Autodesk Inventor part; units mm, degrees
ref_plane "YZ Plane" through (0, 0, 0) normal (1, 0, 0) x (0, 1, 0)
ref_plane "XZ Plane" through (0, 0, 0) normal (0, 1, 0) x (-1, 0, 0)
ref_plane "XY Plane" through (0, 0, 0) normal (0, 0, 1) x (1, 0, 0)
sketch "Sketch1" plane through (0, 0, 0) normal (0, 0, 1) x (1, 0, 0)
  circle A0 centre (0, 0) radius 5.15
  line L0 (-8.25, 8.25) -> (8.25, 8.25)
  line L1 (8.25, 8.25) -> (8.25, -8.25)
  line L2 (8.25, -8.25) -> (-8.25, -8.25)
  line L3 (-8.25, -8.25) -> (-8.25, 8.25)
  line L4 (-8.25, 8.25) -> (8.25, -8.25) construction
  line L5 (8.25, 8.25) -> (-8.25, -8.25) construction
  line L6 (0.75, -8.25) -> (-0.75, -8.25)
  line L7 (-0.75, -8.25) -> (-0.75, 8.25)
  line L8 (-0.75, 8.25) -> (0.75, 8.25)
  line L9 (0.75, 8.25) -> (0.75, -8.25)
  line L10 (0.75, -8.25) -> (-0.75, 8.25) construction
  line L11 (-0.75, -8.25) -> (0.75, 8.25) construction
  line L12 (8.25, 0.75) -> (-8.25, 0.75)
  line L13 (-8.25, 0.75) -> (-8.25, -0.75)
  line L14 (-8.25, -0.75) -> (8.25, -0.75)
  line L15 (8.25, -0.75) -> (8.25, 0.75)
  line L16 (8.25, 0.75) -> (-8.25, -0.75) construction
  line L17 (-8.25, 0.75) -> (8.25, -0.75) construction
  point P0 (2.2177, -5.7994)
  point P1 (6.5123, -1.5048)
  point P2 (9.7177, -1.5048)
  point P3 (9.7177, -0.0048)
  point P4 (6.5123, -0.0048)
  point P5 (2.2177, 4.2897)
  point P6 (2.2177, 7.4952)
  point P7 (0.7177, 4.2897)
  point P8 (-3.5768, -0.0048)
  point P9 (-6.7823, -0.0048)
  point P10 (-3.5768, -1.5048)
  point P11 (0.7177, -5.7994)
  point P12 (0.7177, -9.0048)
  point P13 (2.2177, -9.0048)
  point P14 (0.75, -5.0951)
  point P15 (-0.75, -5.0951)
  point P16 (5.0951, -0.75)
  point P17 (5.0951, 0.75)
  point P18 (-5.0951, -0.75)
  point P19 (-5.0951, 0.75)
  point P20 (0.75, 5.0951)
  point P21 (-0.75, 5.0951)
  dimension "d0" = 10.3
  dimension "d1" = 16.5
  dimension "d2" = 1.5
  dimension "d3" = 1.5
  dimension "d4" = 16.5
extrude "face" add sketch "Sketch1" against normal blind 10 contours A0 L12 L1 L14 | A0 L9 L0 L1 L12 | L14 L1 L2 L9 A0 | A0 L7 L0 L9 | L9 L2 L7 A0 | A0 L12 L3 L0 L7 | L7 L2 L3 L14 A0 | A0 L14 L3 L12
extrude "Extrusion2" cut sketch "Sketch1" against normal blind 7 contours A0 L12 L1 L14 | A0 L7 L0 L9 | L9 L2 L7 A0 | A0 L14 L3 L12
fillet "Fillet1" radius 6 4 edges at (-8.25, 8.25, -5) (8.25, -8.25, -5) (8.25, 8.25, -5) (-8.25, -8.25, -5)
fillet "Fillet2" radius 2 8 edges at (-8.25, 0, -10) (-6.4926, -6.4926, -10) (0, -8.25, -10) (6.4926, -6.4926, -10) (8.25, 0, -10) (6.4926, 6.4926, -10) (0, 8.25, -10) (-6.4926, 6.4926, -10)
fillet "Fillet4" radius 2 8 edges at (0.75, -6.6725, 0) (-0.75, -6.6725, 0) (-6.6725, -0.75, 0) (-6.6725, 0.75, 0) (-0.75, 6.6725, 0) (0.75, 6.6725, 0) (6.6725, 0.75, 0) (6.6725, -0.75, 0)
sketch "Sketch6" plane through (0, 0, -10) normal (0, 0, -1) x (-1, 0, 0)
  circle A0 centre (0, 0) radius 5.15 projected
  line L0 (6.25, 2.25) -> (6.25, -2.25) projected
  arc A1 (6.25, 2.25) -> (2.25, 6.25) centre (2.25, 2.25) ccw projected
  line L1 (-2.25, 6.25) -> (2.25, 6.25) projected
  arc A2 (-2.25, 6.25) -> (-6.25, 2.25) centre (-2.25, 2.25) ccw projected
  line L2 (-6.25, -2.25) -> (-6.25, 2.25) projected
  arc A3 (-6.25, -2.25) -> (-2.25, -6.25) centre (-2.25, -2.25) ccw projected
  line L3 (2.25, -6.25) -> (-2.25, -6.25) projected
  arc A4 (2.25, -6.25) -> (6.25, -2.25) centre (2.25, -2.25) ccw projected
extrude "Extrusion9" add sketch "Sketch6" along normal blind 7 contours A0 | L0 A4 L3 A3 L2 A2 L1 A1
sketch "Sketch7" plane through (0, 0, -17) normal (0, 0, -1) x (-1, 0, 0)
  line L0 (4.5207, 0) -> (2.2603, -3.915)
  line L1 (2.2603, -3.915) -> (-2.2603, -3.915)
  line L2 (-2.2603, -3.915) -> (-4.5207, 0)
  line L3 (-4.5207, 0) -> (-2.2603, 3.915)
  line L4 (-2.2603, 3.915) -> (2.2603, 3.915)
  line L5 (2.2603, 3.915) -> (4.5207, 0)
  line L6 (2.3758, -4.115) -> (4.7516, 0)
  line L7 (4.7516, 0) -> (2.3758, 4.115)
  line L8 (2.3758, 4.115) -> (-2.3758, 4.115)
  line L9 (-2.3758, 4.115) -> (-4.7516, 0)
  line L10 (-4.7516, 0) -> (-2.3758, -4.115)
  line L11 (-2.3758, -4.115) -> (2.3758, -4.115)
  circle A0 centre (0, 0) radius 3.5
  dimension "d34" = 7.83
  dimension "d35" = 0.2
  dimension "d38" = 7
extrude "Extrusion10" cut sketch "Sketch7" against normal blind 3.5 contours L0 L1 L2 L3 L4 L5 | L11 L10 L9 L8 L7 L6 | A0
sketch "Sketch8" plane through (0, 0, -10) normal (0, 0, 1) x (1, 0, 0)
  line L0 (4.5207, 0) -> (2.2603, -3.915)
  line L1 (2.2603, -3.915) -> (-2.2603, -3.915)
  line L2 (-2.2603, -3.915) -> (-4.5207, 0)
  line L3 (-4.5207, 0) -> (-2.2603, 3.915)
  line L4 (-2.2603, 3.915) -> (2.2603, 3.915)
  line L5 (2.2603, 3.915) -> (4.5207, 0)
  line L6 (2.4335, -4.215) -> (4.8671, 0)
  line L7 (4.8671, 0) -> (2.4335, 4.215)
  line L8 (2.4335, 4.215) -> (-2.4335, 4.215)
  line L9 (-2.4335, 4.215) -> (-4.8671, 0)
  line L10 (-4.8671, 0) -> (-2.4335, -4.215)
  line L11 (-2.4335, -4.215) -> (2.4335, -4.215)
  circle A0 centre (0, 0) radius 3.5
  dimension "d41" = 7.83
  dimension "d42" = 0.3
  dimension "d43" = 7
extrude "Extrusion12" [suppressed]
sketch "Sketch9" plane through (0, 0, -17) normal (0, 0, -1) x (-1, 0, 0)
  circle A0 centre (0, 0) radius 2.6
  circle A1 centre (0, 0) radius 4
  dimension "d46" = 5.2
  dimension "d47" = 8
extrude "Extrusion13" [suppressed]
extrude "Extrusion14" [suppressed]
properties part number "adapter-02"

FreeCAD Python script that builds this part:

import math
import FreeCAD as App
import Part
import Sketcher
from FreeCAD import Vector
Q = App.Units.Quantity


def edges_at(feature, points):
    """Names of the edges that pass closest to the given points."""
    edges = feature.Shape.Edges
    near = lambda p: min(range(len(edges)), key=lambda i: edges[i].distToShape(Part.Vertex(*p))[0])
    return sorted({f"Edge{near(p) + 1}" for p in points})

doc = App.newDocument("Part")
params = doc.addObject("Spreadsheet::Sheet", "Params")
for row, (alias, value) in enumerate([
    ("sketch1_diameter", "10.3 mm"),
    ("sketch1_width", "16.5 mm"),
    ("pad1_length", "10 mm"),
    ("sketch2_radius", "5.15 mm"),
    ("sketch2_width", "1.5 mm"),
    ("pocket1_length", "7 mm"),
    ("fillet_radius", "6 mm"),
    ("fillet2_radius", "2 mm"),
    ("fillet3_radius", "2 mm"),
    ("sketch3_radius", "4 mm"),
    ("sketch3_width", "4.5 mm"),
    ("pad2_length", "7 mm"),
    ("pocket2_length", "3.5 mm"),
], start=1):
    params.set(f"A{row}", alias)
    params.set(f"B{row}", "=" + value)
    params.setAlias(f"B{row}", alias)

body = doc.addObject("PartDesign::Body", "Body")

# Sketch on XY plane
sketch1 = body.newObject("Sketcher::SketchObject", "Sketch")
sketch1.AttachmentSupport = (doc.getObject("XY_Plane"), [""])
sketch1.MapMode = "FlatFace"
sketch1.addGeometry([
    Part.LineSegment(Vector(8, 8, 0), Vector(-8, 8, 0)),  # 0
    Part.LineSegment(Vector(-8, 8, 0), Vector(-8, -8, 0)),  # 1
    Part.LineSegment(Vector(-8, -8, 0), Vector(8, -8, 0)),  # 2
    Part.LineSegment(Vector(8, -8, 0), Vector(8, 8, 0)),  # 3
    Part.Circle(Vector(0, 0, 0), Vector(0, 0, 1), 5),  # 4
], False)
sketch1.addConstraint([
    Sketcher.Constraint("Coincident", 0, 2, 1, 1),
    Sketcher.Constraint("Coincident", 1, 2, 2, 1),
    Sketcher.Constraint("Coincident", 2, 2, 3, 1),
    Sketcher.Constraint("Coincident", 3, 2, 0, 1),
    Sketcher.Constraint("Horizontal", 0),
    Sketcher.Constraint("Vertical", 1),
    Sketcher.Constraint("Horizontal", 2),
    Sketcher.Constraint("Vertical", 3),
    Sketcher.Constraint("Coincident", 4, 3, -1, 1),
    Sketcher.Constraint("Symmetric", 0, 2, 2, 2, -1, 1),
    Sketcher.Constraint("Equal", 2, 1),
    Sketcher.Constraint("Diameter", 4, 10.3),
    Sketcher.Constraint("DistanceX", 0, 2, 0, 1, 16.5),
])
sketch1.setExpression("Constraints[11]", "Params.sketch1_diameter")
sketch1.setExpression("Constraints[12]", "Params.sketch1_width")
pad1 = body.newObject("PartDesign::Pad", "Pad")
pad1.Profile = sketch1
pad1.setExpression("Length", "Params.pad1_length")
pad1.Reversed = True

# Sketch on XY plane
sketch2 = body.newObject("Sketcher::SketchObject", "Sketch001")
sketch2.AttachmentSupport = (doc.getObject("XY_Plane"), [""])
sketch2.MapMode = "FlatFace"
sketch2.addGeometry([
    Part.ArcOfCircle(Part.Circle(Vector(0, 0, 0), Vector(0, 0, 1), 5.2), math.radians(-8.37), math.radians(8.37)),  # 0
    Part.LineSegment(Vector(5.1, -0.8, 0), Vector(8.2, -0.8, 0)),  # 1
    Part.LineSegment(Vector(8.2, -0.8, 0), Vector(8.2, 0.8, 0)),  # 2
    Part.LineSegment(Vector(8.2, 0.8, 0), Vector(5.1, 0.8, 0)),  # 3
    Part.ArcOfCircle(Part.Circle(Vector(0, 0, 0), Vector(0, 0, 1), 5.2), math.radians(81.63), math.radians(98.37)),  # 4
    Part.LineSegment(Vector(0.8, 5.1, 0), Vector(0.8, 8.2, 0)),  # 5
    Part.LineSegment(Vector(0.8, 8.2, 0), Vector(-0.8, 8.2, 0)),  # 6
    Part.LineSegment(Vector(-0.8, 8.2, 0), Vector(-0.8, 5.1, 0)),  # 7
    Part.LineSegment(Vector(0.8, -8.2, 0), Vector(0.8, -5.1, 0)),  # 8
    Part.ArcOfCircle(Part.Circle(Vector(0, 0, 0), Vector(0, 0, 1), 5.2), math.radians(-98.37), math.radians(-81.63)),  # 9
    Part.LineSegment(Vector(-0.8, -5.1, 0), Vector(-0.8, -8.2, 0)),  # 10
    Part.LineSegment(Vector(-0.8, -8.2, 0), Vector(0.8, -8.2, 0)),  # 11
    Part.ArcOfCircle(Part.Circle(Vector(0, 0, 0), Vector(0, 0, 1), 5.2), math.radians(171.63), math.radians(188.37)),  # 12
    Part.LineSegment(Vector(-5.1, 0.8, 0), Vector(-8.2, 0.8, 0)),  # 13
    Part.LineSegment(Vector(-8.2, 0.8, 0), Vector(-8.2, -0.8, 0)),  # 14
    Part.LineSegment(Vector(-8.2, -0.8, 0), Vector(-5.1, -0.8, 0)),  # 15
], False)
sketch2.addConstraint([
    Sketcher.Constraint("Coincident", 0, 1, 1, 1),
    Sketcher.Constraint("Coincident", 1, 2, 2, 1),
    Sketcher.Constraint("Coincident", 2, 2, 3, 1),
    Sketcher.Constraint("Coincident", 3, 2, 0, 2),
    Sketcher.Constraint("Coincident", 4, 1, 5, 1),
    Sketcher.Constraint("Coincident", 5, 2, 6, 1),
    Sketcher.Constraint("Coincident", 6, 2, 7, 1),
    Sketcher.Constraint("Coincident", 7, 2, 4, 2),
    Sketcher.Constraint("Coincident", 8, 2, 9, 2),
    Sketcher.Constraint("Coincident", 9, 1, 10, 1),
    Sketcher.Constraint("Coincident", 10, 2, 11, 1),
    Sketcher.Constraint("Coincident", 11, 2, 8, 1),
    Sketcher.Constraint("Coincident", 12, 1, 13, 1),
    Sketcher.Constraint("Coincident", 13, 2, 14, 1),
    Sketcher.Constraint("Coincident", 14, 2, 15, 1),
    Sketcher.Constraint("Coincident", 15, 2, 12, 2),
    Sketcher.Constraint("Horizontal", 1),
    Sketcher.Constraint("Vertical", 2),
    Sketcher.Constraint("Horizontal", 3),
    Sketcher.Constraint("Vertical", 5),
    Sketcher.Constraint("Horizontal", 6),
    Sketcher.Constraint("Vertical", 7),
    Sketcher.Constraint("Vertical", 8),
    Sketcher.Constraint("Vertical", 10),
    Sketcher.Constraint("Horizontal", 11),
    Sketcher.Constraint("Horizontal", 13),
    Sketcher.Constraint("Vertical", 14),
    Sketcher.Constraint("Horizontal", 15),
    Sketcher.Constraint("Coincident", 0, 3, -1, 1),
    Sketcher.Constraint("Coincident", 4, 3, -1, 1),
    Sketcher.Constraint("Coincident", 9, 3, -1, 1),
    Sketcher.Constraint("Coincident", 12, 3, -1, 1),
    Sketcher.Constraint("Equal", 0, 4),
    Sketcher.Constraint("Equal", 4, 9),
    Sketcher.Constraint("Equal", 9, 12),
    Sketcher.Constraint("Symmetric", 5, 2, 10, 2, -1, 1),
    Sketcher.Constraint("Symmetric", 1, 2, 13, 2, -1, 1),
    Sketcher.Constraint("Horizontal", 4, 1, 7, 2),
    Sketcher.Constraint("Horizontal", 8, 2, 9, 1),
    Sketcher.Constraint("Horizontal", 3, 2, 12, 1),
    Sketcher.Constraint("Horizontal", 1, 2, 14, 2),
    Sketcher.Constraint("Equal", 11, 2),
    Sketcher.Constraint("Equal", 15, 5),
    Sketcher.Constraint("Radius", 0, 5.15),
    Sketcher.Constraint("DistanceX", 6, 2, 6, 1, 1.5),
    Sketcher.Constraint("DistanceX", 1, 1, 1, 2, 3.155),
])
sketch2.setExpression("Constraints[43]", "Params.sketch2_radius")
sketch2.setExpression("Constraints[44]", "Params.sketch2_width")
pocket1 = body.newObject("PartDesign::Pocket", "Pocket")
pocket1.Profile = sketch2
pocket1.setExpression("Length", "Params.pocket1_length")
doc.recompute()

fillet = body.newObject("PartDesign::Fillet", "Fillet")
fillet.Base = (pocket1, edges_at(pocket1, [
    (-8.25, 8.25, -5),
    (8.25, -8.25, -5),
    (8.25, 8.25, -5),
    (-8.25, -8.25, -5),
]))
fillet.setExpression("Radius", "Params.fillet_radius")
doc.recompute()

fillet2 = body.newObject("PartDesign::Fillet", "Fillet001")
fillet2.Base = (fillet, edges_at(fillet, [
    (-8.25, 0, -10),
    (-6.493, -6.493, -10),
    (0, -8.25, -10),
    (6.493, -6.493, -10),
    (8.25, 0, -10),
    (6.493, 6.493, -10),
    (0, 8.25, -10),
    (-6.493, 6.493, -10),
]))
fillet2.setExpression("Radius", "Params.fillet2_radius")
doc.recompute()

fillet3 = body.newObject("PartDesign::Fillet", "Fillet002")
fillet3.Base = (fillet2, edges_at(fillet2, [
    (0.75, -6.673, 0),
    (-0.75, -6.673, 0),
    (-6.673, -0.75, 0),
    (-6.673, 0.75, 0),
    (-0.75, 6.673, 0),
    (0.75, 6.673, 0),
    (6.673, 0.75, 0),
    (6.673, -0.75, 0),
]))
fillet3.setExpression("Radius", "Params.fillet3_radius")

# Sketch on XY plane
sketch3 = body.newObject("Sketcher::SketchObject", "Sketch002")
sketch3.AttachmentSupport = (doc.getObject("XY_Plane"), [""])
sketch3.MapMode = "FlatFace"
sketch3.AttachmentOffset = App.Placement(Vector(0, 0, -10), App.Rotation())
sketch3.addGeometry([
    Part.LineSegment(Vector(-6.2, -2.2, 0), Vector(-6.2, 2.2, 0)),  # 0
    Part.ArcOfCircle(Part.Circle(Vector(-2.2, 2.2, 0), Vector(0, 0, 1), 4), math.radians(90), math.radians(180)),  # 1
    Part.LineSegment(Vector(-2.2, 6.2, 0), Vector(2.2, 6.2, 0)),  # 2
    Part.ArcOfCircle(Part.Circle(Vector(2.2, 2.2, 0), Vector(0, 0, 1), 4), math.radians(0), math.radians(90)),  # 3
    Part.LineSegment(Vector(6.2, 2.2, 0), Vector(6.2, -2.2, 0)),  # 4
    Part.ArcOfCircle(Part.Circle(Vector(2.2, -2.2, 0), Vector(0, 0, 1), 4), math.radians(-90), math.radians(0)),  # 5
    Part.LineSegment(Vector(2.2, -6.2, 0), Vector(-2.2, -6.2, 0)),  # 6
    Part.ArcOfCircle(Part.Circle(Vector(-2.2, -2.2, 0), Vector(0, 0, 1), 4), math.radians(180), math.radians(270)),  # 7
], False)
sketch3.addConstraint([
    Sketcher.Constraint("Tangent", 0, 2, 1, 2),
    Sketcher.Constraint("Tangent", 1, 1, 2, 1),
    Sketcher.Constraint("Tangent", 2, 2, 3, 2),
    Sketcher.Constraint("Tangent", 3, 1, 4, 1),
    Sketcher.Constraint("Tangent", 4, 2, 5, 2),
    Sketcher.Constraint("Tangent", 5, 1, 6, 1),
    Sketcher.Constraint("Tangent", 6, 2, 7, 2),
    Sketcher.Constraint("Tangent", 7, 1, 0, 1),
    Sketcher.Constraint("Vertical", 0),
    Sketcher.Constraint("Horizontal", 2),
    Sketcher.Constraint("Vertical", 4),
    Sketcher.Constraint("Horizontal", 6),
    Sketcher.Constraint("Equal", 1, 3),
    Sketcher.Constraint("Equal", 3, 5),
    Sketcher.Constraint("Equal", 5, 7),
    Sketcher.Constraint("Symmetric", 1, 3, 5, 3, -1, 1),
    Sketcher.Constraint("Equal", 6, 0),
    Sketcher.Constraint("Radius", 1, 4.0),
    Sketcher.Constraint("DistanceX", 2, 1, 2, 2, 4.5),
])
sketch3.setExpression("Constraints[17]", "Params.sketch3_radius")
sketch3.setExpression("Constraints[18]", "Params.sketch3_width")
pad2 = body.newObject("PartDesign::Pad", "Pad001")
pad2.Profile = sketch3
pad2.setExpression("Length", "Params.pad2_length")
pad2.Reversed = True

# Sketch on XY plane
sketch4 = body.newObject("Sketcher::SketchObject", "Sketch003")
sketch4.AttachmentSupport = (doc.getObject("XY_Plane"), [""])
sketch4.MapMode = "FlatFace"
sketch4.AttachmentOffset = App.Placement(Vector(0, 0, -17), App.Rotation())
sketch4.addGeometry([
    Part.LineSegment(Vector(2.4, -4.1, 0), Vector(-2.4, -4.1, 0)),  # 0
    Part.LineSegment(Vector(-2.4, -4.1, 0), Vector(-4.8, 0, 0)),  # 1
    Part.LineSegment(Vector(-4.8, 0, 0), Vector(-2.4, 4.1, 0)),  # 2
    Part.LineSegment(Vector(-2.4, 4.1, 0), Vector(2.4, 4.1, 0)),  # 3
    Part.LineSegment(Vector(2.4, 4.1, 0), Vector(4.8, 0, 0)),  # 4
    Part.LineSegment(Vector(4.8, 0, 0), Vector(2.4, -4.1, 0)),  # 5
], False)
sketch4.addConstraint([
    Sketcher.Constraint("Coincident", 0, 2, 1, 1),
    Sketcher.Constraint("Coincident", 1, 2, 2, 1),
    Sketcher.Constraint("Coincident", 2, 2, 3, 1),
    Sketcher.Constraint("Coincident", 3, 2, 4, 1),
    Sketcher.Constraint("Coincident", 4, 2, 5, 1),
    Sketcher.Constraint("Coincident", 5, 2, 0, 1),
    Sketcher.Constraint("Horizontal", 0),
    Sketcher.Constraint("Horizontal", 3),
    Sketcher.Constraint("Symmetric", 0, 2, 3, 2, -1, 1),
    Sketcher.Constraint("Symmetric", 1, 2, 4, 2, -1, 1),
    Sketcher.Constraint("PointOnObject", 1, 2, -1),
    Sketcher.Constraint("Parallel", 2, 5),
    Sketcher.Constraint("Vertical", 0, 2, 2, 2),
    Sketcher.Constraint("Angle", 1, Q("120 deg")),
    Sketcher.Constraint("DistanceY", 0, 2, 2, 2, 8.23),
    Sketcher.Constraint("DistanceX", 0, 2, 0, 1, 4.7516),
])
pocket2 = body.newObject("PartDesign::Pocket", "Pocket001")
pocket2.Profile = sketch4
pocket2.setExpression("Length", "Params.pocket2_length")
pocket2.Reversed = True

doc.recompute()
